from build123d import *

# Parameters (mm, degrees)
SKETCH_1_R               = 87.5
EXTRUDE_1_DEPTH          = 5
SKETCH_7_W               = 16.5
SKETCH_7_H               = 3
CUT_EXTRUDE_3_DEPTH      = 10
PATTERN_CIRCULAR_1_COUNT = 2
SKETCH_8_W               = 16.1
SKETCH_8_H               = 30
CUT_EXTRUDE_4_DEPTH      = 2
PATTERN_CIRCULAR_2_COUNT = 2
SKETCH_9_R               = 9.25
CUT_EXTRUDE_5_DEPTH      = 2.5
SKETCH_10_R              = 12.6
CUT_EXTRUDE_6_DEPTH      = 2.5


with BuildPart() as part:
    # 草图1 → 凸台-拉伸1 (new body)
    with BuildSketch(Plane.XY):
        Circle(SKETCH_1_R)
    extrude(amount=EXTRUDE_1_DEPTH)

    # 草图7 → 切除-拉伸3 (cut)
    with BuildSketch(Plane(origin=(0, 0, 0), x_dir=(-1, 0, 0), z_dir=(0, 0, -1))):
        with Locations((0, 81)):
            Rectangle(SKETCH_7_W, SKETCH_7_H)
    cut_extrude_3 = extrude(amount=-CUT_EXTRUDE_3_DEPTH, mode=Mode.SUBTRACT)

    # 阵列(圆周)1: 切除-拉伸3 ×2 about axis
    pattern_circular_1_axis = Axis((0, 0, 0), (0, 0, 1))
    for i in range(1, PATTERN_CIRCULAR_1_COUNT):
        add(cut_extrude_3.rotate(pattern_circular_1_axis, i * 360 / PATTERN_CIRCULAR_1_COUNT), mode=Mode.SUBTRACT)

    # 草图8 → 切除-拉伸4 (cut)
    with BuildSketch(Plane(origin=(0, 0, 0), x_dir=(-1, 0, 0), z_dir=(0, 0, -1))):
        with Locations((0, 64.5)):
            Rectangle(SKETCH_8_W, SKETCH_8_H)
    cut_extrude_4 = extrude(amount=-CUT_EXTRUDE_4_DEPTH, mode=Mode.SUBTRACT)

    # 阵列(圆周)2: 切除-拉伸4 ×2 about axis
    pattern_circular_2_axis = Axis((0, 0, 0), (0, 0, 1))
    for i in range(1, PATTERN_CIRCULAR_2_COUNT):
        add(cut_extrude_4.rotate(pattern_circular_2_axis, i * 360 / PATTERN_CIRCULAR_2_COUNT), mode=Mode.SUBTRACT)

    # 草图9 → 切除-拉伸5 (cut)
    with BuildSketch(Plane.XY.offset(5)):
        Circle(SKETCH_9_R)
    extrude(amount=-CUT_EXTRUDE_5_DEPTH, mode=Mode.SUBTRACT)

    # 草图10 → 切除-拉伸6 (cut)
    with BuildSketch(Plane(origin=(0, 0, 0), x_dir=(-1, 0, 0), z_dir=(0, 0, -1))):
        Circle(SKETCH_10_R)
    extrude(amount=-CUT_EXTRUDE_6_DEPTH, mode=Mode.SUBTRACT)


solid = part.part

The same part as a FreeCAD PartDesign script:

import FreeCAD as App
import Part
import Sketcher
from FreeCAD import Vector


def add_polygon(sketch, points):
    """Adds a closed chain of lines whose ends are joined by coincident constraints."""
    first, n = sketch.GeometryCount, len(points)
    for a, b in zip(points, points[1:] + points[:1]):
        sketch.addGeometry(Part.LineSegment(App.Vector(*a, 0), App.Vector(*b, 0)), False)
    for i in range(n):
        sketch.addConstraint(Sketcher.Constraint("Coincident", first + i, 2, first + (i + 1) % n, 1))

doc = App.newDocument("Part")
body = doc.addObject("PartDesign::Body", "Body")

# Sketch on XY plane
sketch1 = body.newObject("Sketcher::SketchObject", "Sketch")
sketch1.AttachmentSupport = (doc.getObject("XY_Plane"), [""])
sketch1.MapMode = "FlatFace"
sketch1.addGeometry(Part.Circle(Vector(0, 0, 0), Vector(0, 0, 1), 88), False)
sketch1.addConstraint(Sketcher.Constraint("Coincident", 0, 3, -1, 1))
sketch1.addConstraint(Sketcher.Constraint("Diameter", 0, 175.0))
pad1 = body.newObject("PartDesign::Pad", "Pad")
pad1.Profile = sketch1
pad1.Length = 5

# Sketch on XY plane
sketch2 = body.newObject("Sketcher::SketchObject", "Sketch001")
sketch2.AttachmentSupport = (doc.getObject("XY_Plane"), [""])
sketch2.MapMode = "FlatFace"
add_polygon(sketch2, [(8.2, 82.5), (8.2, 79.5), (-8.2, 79.5), (-8.2, 82.5)])  # lines 0-3
sketch2.addConstraint(Sketcher.Constraint("Vertical", 0))
sketch2.addConstraint(Sketcher.Constraint("Horizontal", 1))
sketch2.addConstraint(Sketcher.Constraint("Vertical", 2))
sketch2.addConstraint(Sketcher.Constraint("Horizontal", 3))
sketch2.addConstraint(Sketcher.Constraint("DistanceY", 0, 2, 0, 1, 3.0))
sketch2.addConstraint(Sketcher.Constraint("DistanceX", 1, 2, 1, 1, 16.5))
sketch2.addConstraint(Sketcher.Constraint("DistanceY", -1, 1, 0, 2, 79.5))
sketch2.addConstraint(Sketcher.Constraint("DistanceX", -1, 1, 0, 2, 8.25))
pocket1 = body.newObject("PartDesign::Pocket", "Pocket")
pocket1.Profile = sketch2
pocket1.Length = 10
pocket1.Reversed = True
doc.recompute()

polarpattern = body.newObject("PartDesign::PolarPattern", "PolarPattern")
polarpattern.Originals = [pocket1]
polarpattern.Axis = (doc.getObject("Z_Axis"), [""])
polarpattern.Angle = 360
polarpattern.Occurrences = 2
body.Tip = polarpattern

# Sketch on XY plane
sketch3 = body.newObject("Sketcher::SketchObject", "Sketch002")
sketch3.AttachmentSupport = (doc.getObject("XY_Plane"), [""])
sketch3.MapMode = "FlatFace"
add_polygon(sketch3, [(8, 80), (8, 50), (-8, 50), (-8, 80)])  # lines 0-3
sketch3.addConstraint(Sketcher.Constraint("Vertical", 0))
sketch3.addConstraint(Sketcher.Constraint("Horizontal", 1))
sketch3.addConstraint(Sketcher.Constraint("Vertical", 2))
sketch3.addConstraint(Sketcher.Constraint("Horizontal", 3))
sketch3.addConstraint(Sketcher.Constraint("DistanceY", 0, 2, 0, 1, 30.0))
sketch3.addConstraint(Sketcher.Constraint("DistanceX", 1, 2, 1, 1, 16.1))
sketch3.addConstraint(Sketcher.Constraint("DistanceY", -1, 1, 0, 2, 49.5))
sketch3.addConstraint(Sketcher.Constraint("DistanceX", -1, 1, 0, 2, 8.05))
pocket2 = body.newObject("PartDesign::Pocket", "Pocket001")
pocket2.Profile = sketch3
pocket2.Length = 2
pocket2.Reversed = True
doc.recompute()

polarpattern2 = body.newObject("PartDesign::PolarPattern", "PolarPattern001")
polarpattern2.Originals = [pocket2]
polarpattern2.Axis = (doc.getObject("Z_Axis"), [""])
polarpattern2.Angle = 360
polarpattern2.Occurrences = 2
body.Tip = polarpattern2

# Sketch on XY plane
sketch4 = body.newObject("Sketcher::SketchObject", "Sketch003")
sketch4.AttachmentSupport = (doc.getObject("XY_Plane"), [""])
sketch4.MapMode = "FlatFace"
sketch4.AttachmentOffset = App.Placement(Vector(0, 0, 5), App.Rotation())
sketch4.addGeometry(Part.Circle(Vector(0, 0, 0), Vector(0, 0, 1), 9), False)
sketch4.addConstraint(Sketcher.Constraint("Coincident", 0, 3, -1, 1))
sketch4.addConstraint(Sketcher.Constraint("Diameter", 0, 18.5))
pocket3 = body.newObject("PartDesign::Pocket", "Pocket002")
pocket3.Profile = sketch4
pocket3.Length = 2.5

# Sketch on XY plane
sketch5 = body.newObject("Sketcher::SketchObject", "Sketch004")
sketch5.AttachmentSupport = (doc.getObject("XY_Plane"), [""])
sketch5.MapMode = "FlatFace"
sketch5.addGeometry(Part.Circle(Vector(0, 0, 0), Vector(0, 0, 1), 13), False)
sketch5.addConstraint(Sketcher.Constraint("Coincident", 0, 3, -1, 1))
sketch5.addConstraint(Sketcher.Constraint("Diameter", 0, 25.2))
pocket4 = body.newObject("PartDesign::Pocket", "Pocket003")
pocket4.Profile = sketch5
pocket4.Length = 2.5
pocket4.Reversed = True

doc.recompute()
